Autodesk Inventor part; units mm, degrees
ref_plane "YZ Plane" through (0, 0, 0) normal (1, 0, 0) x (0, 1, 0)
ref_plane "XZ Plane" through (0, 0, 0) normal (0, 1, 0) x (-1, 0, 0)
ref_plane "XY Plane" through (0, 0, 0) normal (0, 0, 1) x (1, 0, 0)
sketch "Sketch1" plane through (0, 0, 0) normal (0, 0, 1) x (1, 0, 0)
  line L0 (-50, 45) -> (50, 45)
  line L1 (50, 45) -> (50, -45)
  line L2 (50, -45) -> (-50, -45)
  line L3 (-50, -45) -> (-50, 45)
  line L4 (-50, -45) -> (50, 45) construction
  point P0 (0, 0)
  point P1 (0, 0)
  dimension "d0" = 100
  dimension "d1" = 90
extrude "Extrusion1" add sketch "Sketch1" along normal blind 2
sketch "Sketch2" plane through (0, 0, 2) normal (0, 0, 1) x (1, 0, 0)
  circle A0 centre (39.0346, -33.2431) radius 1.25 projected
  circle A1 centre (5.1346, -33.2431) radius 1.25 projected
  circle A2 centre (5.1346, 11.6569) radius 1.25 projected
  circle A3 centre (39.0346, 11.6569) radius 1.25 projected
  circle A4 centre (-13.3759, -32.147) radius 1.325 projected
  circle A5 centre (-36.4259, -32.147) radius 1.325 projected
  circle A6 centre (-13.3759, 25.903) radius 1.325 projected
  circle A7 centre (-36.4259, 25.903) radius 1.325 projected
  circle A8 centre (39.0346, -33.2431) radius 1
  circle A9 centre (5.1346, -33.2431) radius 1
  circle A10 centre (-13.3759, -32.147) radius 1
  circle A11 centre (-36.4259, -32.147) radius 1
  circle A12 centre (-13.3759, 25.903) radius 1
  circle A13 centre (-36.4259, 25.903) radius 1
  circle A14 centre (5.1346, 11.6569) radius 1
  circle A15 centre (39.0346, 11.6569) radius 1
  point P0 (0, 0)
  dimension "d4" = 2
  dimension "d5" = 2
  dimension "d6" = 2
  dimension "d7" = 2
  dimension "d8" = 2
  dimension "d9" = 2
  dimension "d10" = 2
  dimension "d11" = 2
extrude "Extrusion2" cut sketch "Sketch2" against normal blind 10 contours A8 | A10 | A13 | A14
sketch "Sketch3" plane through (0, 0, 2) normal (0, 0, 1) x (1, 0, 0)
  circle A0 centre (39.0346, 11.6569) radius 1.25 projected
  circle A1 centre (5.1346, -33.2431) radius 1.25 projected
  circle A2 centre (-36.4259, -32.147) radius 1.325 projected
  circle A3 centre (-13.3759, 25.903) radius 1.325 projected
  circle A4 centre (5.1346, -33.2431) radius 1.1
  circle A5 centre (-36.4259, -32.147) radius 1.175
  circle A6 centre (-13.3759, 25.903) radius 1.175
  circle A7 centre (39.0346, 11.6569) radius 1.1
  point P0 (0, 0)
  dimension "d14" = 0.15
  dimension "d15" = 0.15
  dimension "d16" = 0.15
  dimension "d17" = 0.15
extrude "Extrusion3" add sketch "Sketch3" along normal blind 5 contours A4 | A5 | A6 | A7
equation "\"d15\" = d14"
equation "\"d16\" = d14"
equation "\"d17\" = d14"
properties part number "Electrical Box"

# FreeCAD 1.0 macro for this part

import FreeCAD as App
import Part
import Sketcher
from FreeCAD import Vector


def add_polygon(sketch, points):
    """Adds a closed chain of lines whose ends are joined by coincident constraints."""
    first, n = sketch.GeometryCount, len(points)
    for a, b in zip(points, points[1:] + points[:1]):
        sketch.addGeometry(Part.LineSegment(App.Vector(*a, 0), App.Vector(*b, 0)), False)
    for i in range(n):
        sketch.addConstraint(Sketcher.Constraint("Coincident", first + i, 2, first + (i + 1) % n, 1))

doc = App.newDocument("Part")
body = doc.addObject("PartDesign::Body", "Body")

# Sketch on XY plane
sketch1 = body.newObject("Sketcher::SketchObject", "Sketch")
sketch1.AttachmentSupport = (doc.getObject("XY_Plane"), [""])
sketch1.MapMode = "FlatFace"
add_polygon(sketch1, [(50, 45), (-50, 45), (-50, -45), (50, -45)])  # lines 0-3
sketch1.addConstraint(Sketcher.Constraint("Horizontal", 0))
sketch1.addConstraint(Sketcher.Constraint("Vertical", 1))
sketch1.addConstraint(Sketcher.Constraint("Horizontal", 2))
sketch1.addConstraint(Sketcher.Constraint("Vertical", 3))
sketch1.addConstraint(Sketcher.Constraint("Symmetric", 0, 2, 2, 2, -1, 1))
sketch1.addConstraint(Sketcher.Constraint("DistanceX", 0, 2, 0, 1, 100.0))
sketch1.addConstraint(Sketcher.Constraint("DistanceY", 1, 2, 1, 1, 90.0))
pad1 = body.newObject("PartDesign::Pad", "Pad")
pad1.Profile = sketch1
pad1.Length = 2

# Sketch on XY plane
sketch2 = body.newObject("Sketcher::SketchObject", "Sketch001")
sketch2.AttachmentSupport = (doc.getObject("XY_Plane"), [""])
sketch2.MapMode = "FlatFace"
sketch2.AttachmentOffset = App.Placement(Vector(0, 0, 2), App.Rotation())
sketch2.addGeometry(Part.Circle(Vector(39, -33.2, 0), Vector(0, 0, 1), 1), False)
sketch2.addGeometry(Part.Circle(Vector(-13.4, -32.1, 0), Vector(0, 0, 1), 1), False)
sketch2.addGeometry(Part.Circle(Vector(-36.4, 25.9, 0), Vector(0, 0, 1), 1), False)
sketch2.addGeometry(Part.Circle(Vector(5.1, 11.7, 0), Vector(0, 0, 1), 1), False)
sketch2.addConstraint(Sketcher.Constraint("Equal", 0, 1))
sketch2.addConstraint(Sketcher.Constraint("Equal", 1, 2))
sketch2.addConstraint(Sketcher.Constraint("Equal", 2, 3))
sketch2.addConstraint(Sketcher.Constraint("Diameter", 0, 2.0))
sketch2.addConstraint(Sketcher.Constraint("DistanceX", 3, 3, 0, 3, 33.9))
sketch2.addConstraint(Sketcher.Constraint("DistanceY", 0, 3, 3, 3, 44.9))
sketch2.addConstraint(Sketcher.Constraint("DistanceX", 2, 3, 1, 3, 23.05))
sketch2.addConstraint(Sketcher.Constraint("DistanceY", 1, 3, 2, 3, 58.05))
sketch2.addConstraint(Sketcher.Constraint("DistanceY", 0, 3, -1, 1, 33.243))
sketch2.addConstraint(Sketcher.Constraint("DistanceX", 1, 3, -1, 1, 13.376))
sketch2.addConstraint(Sketcher.Constraint("DistanceY", 1, 3, -1, 1, 32.147))
sketch2.addConstraint(Sketcher.Constraint("DistanceX", -1, 1, 0, 3, 39.0346))
pocket1 = body.newObject("PartDesign::Pocket", "Pocket")
pocket1.Profile = sketch2
pocket1.Length = 10

# Sketch on XY plane
sketch3 = body.newObject("Sketcher::SketchObject", "Sketch002")
sketch3.AttachmentSupport = (doc.getObject("XY_Plane"), [""])
sketch3.MapMode = "FlatFace"
sketch3.AttachmentOffset = App.Placement(Vector(0, 0, 2), App.Rotation())
sketch3.addGeometry(Part.Circle(Vector(5.1, -33.2, 0), Vector(0, 0, 1), 1.1), False)
sketch3.addGeometry(Part.Circle(Vector(-36.4, -32.1, 0), Vector(0, 0, 1), 1.2), False)
sketch3.addGeometry(Part.Circle(Vector(-13.4, 25.9, 0), Vector(0, 0, 1), 1.2), False)
sketch3.addGeometry(Part.Circle(Vector(39, 11.7, 0), Vector(0, 0, 1), 1.1), False)
sketch3.addConstraint(Sketcher.Constraint("Equal", 1, 2))
sketch3.addConstraint(Sketcher.Constraint("Equal", 0, 3))
sketch3.addConstraint(Sketcher.Constraint("Diameter", 0, 2.2))
sketch3.addConstraint(Sketcher.Constraint("Diameter", 1, 2.35))
sketch3.addConstraint(Sketcher.Constraint("DistanceX", 0, 3, 3, 3, 33.9))
sketch3.addConstraint(Sketcher.Constraint("DistanceY", 0, 3, 3, 3, 44.9))
sketch3.addConstraint(Sketcher.Constraint("DistanceX", 1, 3, 2, 3, 23.05))
sketch3.addConstraint(Sketcher.Constraint("DistanceY", 1, 3, 2, 3, 58.05))
sketch3.addConstraint(Sketcher.Constraint("DistanceY", 0, 3, -1, 1, 33.243))
sketch3.addConstraint(Sketcher.Constraint("DistanceX", 1, 3, -1, 1, 36.426))
sketch3.addConstraint(Sketcher.Constraint("DistanceY", 1, 3, -1, 1, 32.147))
sketch3.addConstraint(Sketcher.Constraint("DistanceX", -1, 1, 0, 3, 5.1346))
pad2 = body.newObject("PartDesign::Pad", "Pad001")
pad2.Profile = sketch3
pad2.Length = 5

doc.recompute()
